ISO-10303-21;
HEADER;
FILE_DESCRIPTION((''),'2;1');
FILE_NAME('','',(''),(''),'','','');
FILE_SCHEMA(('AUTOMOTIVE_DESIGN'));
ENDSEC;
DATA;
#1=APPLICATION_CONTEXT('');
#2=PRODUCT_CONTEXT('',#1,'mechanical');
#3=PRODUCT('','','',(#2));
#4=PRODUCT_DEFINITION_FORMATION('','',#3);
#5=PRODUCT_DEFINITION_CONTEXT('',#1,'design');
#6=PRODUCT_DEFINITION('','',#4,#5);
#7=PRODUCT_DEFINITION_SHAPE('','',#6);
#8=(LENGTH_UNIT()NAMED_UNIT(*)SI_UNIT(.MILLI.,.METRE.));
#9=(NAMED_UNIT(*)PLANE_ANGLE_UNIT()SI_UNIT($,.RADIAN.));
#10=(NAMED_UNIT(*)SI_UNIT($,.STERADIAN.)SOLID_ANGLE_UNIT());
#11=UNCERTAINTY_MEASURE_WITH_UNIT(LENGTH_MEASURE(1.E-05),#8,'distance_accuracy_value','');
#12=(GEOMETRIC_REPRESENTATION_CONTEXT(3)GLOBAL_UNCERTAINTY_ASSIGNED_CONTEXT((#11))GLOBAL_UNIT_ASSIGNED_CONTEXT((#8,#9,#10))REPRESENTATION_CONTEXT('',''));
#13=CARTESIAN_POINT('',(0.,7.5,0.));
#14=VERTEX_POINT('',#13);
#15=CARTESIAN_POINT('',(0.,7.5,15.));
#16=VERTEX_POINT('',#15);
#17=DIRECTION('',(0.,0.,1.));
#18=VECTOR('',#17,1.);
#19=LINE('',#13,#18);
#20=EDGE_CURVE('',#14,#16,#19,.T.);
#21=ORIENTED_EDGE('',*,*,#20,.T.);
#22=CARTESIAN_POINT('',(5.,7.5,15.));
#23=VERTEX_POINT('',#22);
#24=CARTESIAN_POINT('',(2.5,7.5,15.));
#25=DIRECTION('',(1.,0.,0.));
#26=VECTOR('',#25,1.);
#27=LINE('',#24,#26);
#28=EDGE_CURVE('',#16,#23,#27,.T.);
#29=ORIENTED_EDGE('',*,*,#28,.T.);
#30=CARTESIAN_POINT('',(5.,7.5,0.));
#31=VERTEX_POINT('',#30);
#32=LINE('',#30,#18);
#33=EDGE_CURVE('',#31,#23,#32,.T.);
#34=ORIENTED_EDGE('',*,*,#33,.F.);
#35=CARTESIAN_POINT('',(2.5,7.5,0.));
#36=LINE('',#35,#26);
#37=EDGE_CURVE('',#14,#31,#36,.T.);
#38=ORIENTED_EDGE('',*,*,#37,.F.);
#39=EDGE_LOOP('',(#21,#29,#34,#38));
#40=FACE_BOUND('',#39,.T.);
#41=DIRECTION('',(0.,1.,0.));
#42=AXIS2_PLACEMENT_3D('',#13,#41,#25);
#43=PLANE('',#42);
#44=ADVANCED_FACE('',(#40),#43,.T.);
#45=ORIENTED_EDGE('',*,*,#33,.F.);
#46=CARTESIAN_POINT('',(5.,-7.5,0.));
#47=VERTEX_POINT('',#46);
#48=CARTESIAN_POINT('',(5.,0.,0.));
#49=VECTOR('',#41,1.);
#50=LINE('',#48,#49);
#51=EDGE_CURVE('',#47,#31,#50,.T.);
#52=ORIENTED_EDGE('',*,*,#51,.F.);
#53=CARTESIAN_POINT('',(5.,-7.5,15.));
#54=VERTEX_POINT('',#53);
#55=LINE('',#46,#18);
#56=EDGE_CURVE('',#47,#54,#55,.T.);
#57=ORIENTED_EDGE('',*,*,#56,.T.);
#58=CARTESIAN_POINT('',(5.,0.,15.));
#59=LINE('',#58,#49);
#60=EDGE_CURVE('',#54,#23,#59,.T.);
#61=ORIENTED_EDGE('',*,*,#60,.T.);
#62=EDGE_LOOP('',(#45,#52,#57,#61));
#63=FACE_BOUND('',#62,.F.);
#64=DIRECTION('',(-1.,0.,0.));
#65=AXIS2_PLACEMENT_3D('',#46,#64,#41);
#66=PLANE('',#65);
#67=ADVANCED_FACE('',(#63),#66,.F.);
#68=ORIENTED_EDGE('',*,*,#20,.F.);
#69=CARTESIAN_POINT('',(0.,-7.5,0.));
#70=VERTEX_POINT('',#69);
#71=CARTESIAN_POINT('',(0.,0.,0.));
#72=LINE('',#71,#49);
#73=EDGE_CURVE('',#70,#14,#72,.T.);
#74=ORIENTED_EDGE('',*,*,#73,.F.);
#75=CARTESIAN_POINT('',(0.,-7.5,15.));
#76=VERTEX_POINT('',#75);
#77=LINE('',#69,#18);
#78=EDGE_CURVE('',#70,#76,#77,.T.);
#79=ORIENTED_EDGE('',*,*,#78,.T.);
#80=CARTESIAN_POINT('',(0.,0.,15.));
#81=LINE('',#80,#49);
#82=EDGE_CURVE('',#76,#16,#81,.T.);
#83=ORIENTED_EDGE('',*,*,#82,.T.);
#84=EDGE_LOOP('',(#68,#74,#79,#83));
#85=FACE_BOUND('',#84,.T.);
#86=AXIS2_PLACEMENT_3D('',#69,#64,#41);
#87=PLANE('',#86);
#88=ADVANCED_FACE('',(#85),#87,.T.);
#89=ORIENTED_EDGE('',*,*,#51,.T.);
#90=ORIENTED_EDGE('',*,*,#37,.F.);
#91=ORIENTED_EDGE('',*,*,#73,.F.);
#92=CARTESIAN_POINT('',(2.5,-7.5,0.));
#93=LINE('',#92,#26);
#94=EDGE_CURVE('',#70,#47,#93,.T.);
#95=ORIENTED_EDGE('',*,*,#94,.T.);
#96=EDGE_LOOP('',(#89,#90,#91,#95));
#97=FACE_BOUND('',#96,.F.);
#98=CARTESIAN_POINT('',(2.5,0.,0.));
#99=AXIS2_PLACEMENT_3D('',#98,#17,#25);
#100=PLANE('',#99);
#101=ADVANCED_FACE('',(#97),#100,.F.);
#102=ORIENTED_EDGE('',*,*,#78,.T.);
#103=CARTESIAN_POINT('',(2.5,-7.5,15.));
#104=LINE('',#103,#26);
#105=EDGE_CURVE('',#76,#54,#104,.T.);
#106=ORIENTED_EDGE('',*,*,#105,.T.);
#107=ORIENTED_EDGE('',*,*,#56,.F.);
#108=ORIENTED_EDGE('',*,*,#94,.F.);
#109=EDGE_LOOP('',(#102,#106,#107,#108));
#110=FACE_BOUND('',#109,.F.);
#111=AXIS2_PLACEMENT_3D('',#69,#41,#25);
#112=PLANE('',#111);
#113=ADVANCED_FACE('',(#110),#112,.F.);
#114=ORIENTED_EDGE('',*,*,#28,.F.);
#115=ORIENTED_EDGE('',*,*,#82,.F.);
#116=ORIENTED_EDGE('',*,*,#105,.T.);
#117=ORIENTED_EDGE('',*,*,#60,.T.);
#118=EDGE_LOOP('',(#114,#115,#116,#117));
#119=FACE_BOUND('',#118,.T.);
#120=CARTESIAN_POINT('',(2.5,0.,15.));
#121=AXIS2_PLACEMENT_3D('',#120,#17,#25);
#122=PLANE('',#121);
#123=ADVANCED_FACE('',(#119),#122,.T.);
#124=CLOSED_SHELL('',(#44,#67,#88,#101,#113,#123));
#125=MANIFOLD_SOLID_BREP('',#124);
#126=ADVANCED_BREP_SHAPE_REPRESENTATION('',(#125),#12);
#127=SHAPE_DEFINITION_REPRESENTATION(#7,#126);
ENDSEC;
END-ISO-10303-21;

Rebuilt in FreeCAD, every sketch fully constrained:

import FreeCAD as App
import Part
import Sketcher
from FreeCAD import Vector
Q = App.Units.Quantity


def add_polygon(sketch, points):
    """Adds a closed chain of lines whose ends are joined by coincident constraints."""
    first, n = sketch.GeometryCount, len(points)
    for a, b in zip(points, points[1:] + points[:1]):
        sketch.addGeometry(Part.LineSegment(App.Vector(*a, 0), App.Vector(*b, 0)), False)
    for i in range(n):
        sketch.addConstraint(Sketcher.Constraint("Coincident", first + i, 2, first + (i + 1) % n, 1))

doc = App.newDocument("Part")
body = doc.addObject("PartDesign::Body", "Body")

sketch1 = doc.addObject("Sketcher::SketchObject", "Sketch")
body.addObject(sketch1)
sketch1.AttachmentSupport = (doc.XY_Plane, [""])
sketch1.MapMode = "FlatFace"
add_polygon(sketch1, [(0, 8), (0, -8), (5, -8), (5, 8)])
sketch1.addConstraint(Sketcher.Constraint("Vertical", 0))
sketch1.addConstraint(Sketcher.Constraint("Horizontal", 1))
sketch1.addConstraint(Sketcher.Constraint("Vertical", 2))
sketch1.addConstraint(Sketcher.Constraint("Horizontal", 3))
sketch1.addConstraint(Sketcher.Constraint("Symmetric", 0, 2, 3, 2, -1, 1))
sketch1.addConstraint(Sketcher.Constraint("DistanceX", 1, 1, 1, 2, Q("5 mm")))
sketch1.addConstraint(Sketcher.Constraint("DistanceY", 0, 2, 0, 1, Q("15 mm")))
pad1 = doc.addObject("PartDesign::Pad", "Pad")
body.addObject(pad1)
pad1.Profile = sketch1
pad1.Length = 15

doc.recompute()
